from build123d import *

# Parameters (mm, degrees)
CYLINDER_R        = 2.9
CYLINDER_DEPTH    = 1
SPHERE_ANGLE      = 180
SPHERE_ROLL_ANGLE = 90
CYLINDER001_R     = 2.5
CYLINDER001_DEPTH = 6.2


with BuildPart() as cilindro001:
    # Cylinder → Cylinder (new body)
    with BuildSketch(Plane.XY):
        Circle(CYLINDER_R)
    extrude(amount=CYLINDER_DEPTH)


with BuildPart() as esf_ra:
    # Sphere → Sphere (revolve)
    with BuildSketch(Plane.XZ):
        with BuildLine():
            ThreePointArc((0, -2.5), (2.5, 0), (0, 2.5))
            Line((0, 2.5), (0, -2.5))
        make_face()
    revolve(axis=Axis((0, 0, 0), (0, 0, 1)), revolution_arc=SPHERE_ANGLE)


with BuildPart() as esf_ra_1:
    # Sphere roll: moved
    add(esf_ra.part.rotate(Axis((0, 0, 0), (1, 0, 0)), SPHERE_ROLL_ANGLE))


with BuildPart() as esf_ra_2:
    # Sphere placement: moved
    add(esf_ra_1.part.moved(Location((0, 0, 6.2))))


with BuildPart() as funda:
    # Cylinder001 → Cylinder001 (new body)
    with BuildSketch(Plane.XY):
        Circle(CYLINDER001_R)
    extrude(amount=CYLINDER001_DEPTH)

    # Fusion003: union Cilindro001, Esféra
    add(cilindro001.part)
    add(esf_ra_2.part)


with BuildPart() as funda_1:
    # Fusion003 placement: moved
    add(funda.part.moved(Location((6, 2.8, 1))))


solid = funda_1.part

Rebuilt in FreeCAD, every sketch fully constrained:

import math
import FreeCAD as App
import Part
import Sketcher

doc = App.newDocument("Part")
body = doc.addObject("PartDesign::Body", "Body")

# Sketch on XY plane
sketch1 = body.newObject("Sketcher::SketchObject", "Sketch")
sketch1.AttachmentSupport = (doc.getObject("XY_Plane"), [""])
sketch1.MapMode = "FlatFace"
sketch1.addGeometry(Part.Circle(App.Vector(0, 0, 0), App.Vector(0, 0, 1), 2.9), False)
sketch1.addConstraint([
    Sketcher.Constraint("Coincident", 0, 3, -1, 1),
    Sketcher.Constraint("Diameter", 0, 5.8),
])
pad1 = body.newObject("PartDesign::Pad", "Pad")
pad1.Profile = sketch1
pad1.Length = 1
body2 = doc.addObject("PartDesign::Body", "Body001")

# Sketch on XZ plane
sketch2 = body2.newObject("Sketcher::SketchObject", "Sketch001")
sketch2.AttachmentSupport = (doc.getObject("XZ_Plane001"), [""])
sketch2.MapMode = "FlatFace"
sketch2.addGeometry([
    Part.ArcOfCircle(Part.Circle(App.Vector(0, 0, 0), App.Vector(0, 0, 1), 2.5), math.radians(-90), math.radians(90)),
    Part.LineSegment(App.Vector(0, 2.5, 0), App.Vector(0, -2.5, 0)),
], False)
sketch2.addConstraint([
    Sketcher.Constraint("Coincident", 0, 1, 1, 2),
    Sketcher.Constraint("Coincident", 1, 1, 0, 2),
    Sketcher.Constraint("Vertical", 1),
    Sketcher.Constraint("Coincident", 0, 3, -1, 1),
    Sketcher.Constraint("PointOnObject", 0, 1, -2),
    Sketcher.Constraint("Radius", 0, 2.5),
])
revolution = body2.newObject("PartDesign::Revolution", "Revolution")
revolution.Profile = sketch2
revolution.ReferenceAxis = (sketch2, ["V_Axis"])
revolution.Angle = 180
body3 = doc.addObject("PartDesign::Body", "Body002")
doc.recompute()

body2.Placement = App.Placement(App.Vector(0, 0, 0), App.Rotation(App.Vector(1, 0, 0), 90))
boolean = body3.newObject("PartDesign::Boolean", "Boolean")
boolean.Type = "Fuse"
boolean.addObjects([body2])
body4 = doc.addObject("PartDesign::Body", "Body003")
doc.recompute()

body3.Placement = App.Placement(App.Vector(0, 0, 6.2), App.Rotation(App.Vector(0, 0, 1), 0))
boolean2 = body4.newObject("PartDesign::Boolean", "Boolean001")
boolean2.Type = "Fuse"
boolean2.addObjects([body3])
body5 = doc.addObject("PartDesign::Body", "Body004")

# Sketch on XY plane
sketch3 = body5.newObject("Sketcher::SketchObject", "Sketch002")
sketch3.AttachmentSupport = (doc.getObject("XY_Plane004"), [""])
sketch3.MapMode = "FlatFace"
sketch3.addGeometry(Part.Circle(App.Vector(0, 0, 0), App.Vector(0, 0, 1), 2.5), False)
sketch3.addConstraint([
    Sketcher.Constraint("Coincident", 0, 3, -1, 1),
    Sketcher.Constraint("Diameter", 0, 5.0),
])
pad2 = body5.newObject("PartDesign::Pad", "Pad001")
pad2.Profile = sketch3
pad2.Length = 6.2
doc.recompute()

boolean3 = body5.newObject("PartDesign::Boolean", "Boolean002")
boolean3.Type = "Fuse"
boolean3.addObjects([body])
doc.recompute()

boolean4 = body5.newObject("PartDesign::Boolean", "Boolean003")
boolean4.Type = "Fuse"
boolean4.addObjects([body4])
body6 = doc.addObject("PartDesign::Body", "Body005")
doc.recompute()

body5.Placement = App.Placement(App.Vector(6, 2.8, 1), App.Rotation(App.Vector(0, 0, 1), 0))
boolean5 = body6.newObject("PartDesign::Boolean", "Boolean004")
boolean5.Type = "Fuse"
boolean5.addObjects([body5])

doc.recompute()
